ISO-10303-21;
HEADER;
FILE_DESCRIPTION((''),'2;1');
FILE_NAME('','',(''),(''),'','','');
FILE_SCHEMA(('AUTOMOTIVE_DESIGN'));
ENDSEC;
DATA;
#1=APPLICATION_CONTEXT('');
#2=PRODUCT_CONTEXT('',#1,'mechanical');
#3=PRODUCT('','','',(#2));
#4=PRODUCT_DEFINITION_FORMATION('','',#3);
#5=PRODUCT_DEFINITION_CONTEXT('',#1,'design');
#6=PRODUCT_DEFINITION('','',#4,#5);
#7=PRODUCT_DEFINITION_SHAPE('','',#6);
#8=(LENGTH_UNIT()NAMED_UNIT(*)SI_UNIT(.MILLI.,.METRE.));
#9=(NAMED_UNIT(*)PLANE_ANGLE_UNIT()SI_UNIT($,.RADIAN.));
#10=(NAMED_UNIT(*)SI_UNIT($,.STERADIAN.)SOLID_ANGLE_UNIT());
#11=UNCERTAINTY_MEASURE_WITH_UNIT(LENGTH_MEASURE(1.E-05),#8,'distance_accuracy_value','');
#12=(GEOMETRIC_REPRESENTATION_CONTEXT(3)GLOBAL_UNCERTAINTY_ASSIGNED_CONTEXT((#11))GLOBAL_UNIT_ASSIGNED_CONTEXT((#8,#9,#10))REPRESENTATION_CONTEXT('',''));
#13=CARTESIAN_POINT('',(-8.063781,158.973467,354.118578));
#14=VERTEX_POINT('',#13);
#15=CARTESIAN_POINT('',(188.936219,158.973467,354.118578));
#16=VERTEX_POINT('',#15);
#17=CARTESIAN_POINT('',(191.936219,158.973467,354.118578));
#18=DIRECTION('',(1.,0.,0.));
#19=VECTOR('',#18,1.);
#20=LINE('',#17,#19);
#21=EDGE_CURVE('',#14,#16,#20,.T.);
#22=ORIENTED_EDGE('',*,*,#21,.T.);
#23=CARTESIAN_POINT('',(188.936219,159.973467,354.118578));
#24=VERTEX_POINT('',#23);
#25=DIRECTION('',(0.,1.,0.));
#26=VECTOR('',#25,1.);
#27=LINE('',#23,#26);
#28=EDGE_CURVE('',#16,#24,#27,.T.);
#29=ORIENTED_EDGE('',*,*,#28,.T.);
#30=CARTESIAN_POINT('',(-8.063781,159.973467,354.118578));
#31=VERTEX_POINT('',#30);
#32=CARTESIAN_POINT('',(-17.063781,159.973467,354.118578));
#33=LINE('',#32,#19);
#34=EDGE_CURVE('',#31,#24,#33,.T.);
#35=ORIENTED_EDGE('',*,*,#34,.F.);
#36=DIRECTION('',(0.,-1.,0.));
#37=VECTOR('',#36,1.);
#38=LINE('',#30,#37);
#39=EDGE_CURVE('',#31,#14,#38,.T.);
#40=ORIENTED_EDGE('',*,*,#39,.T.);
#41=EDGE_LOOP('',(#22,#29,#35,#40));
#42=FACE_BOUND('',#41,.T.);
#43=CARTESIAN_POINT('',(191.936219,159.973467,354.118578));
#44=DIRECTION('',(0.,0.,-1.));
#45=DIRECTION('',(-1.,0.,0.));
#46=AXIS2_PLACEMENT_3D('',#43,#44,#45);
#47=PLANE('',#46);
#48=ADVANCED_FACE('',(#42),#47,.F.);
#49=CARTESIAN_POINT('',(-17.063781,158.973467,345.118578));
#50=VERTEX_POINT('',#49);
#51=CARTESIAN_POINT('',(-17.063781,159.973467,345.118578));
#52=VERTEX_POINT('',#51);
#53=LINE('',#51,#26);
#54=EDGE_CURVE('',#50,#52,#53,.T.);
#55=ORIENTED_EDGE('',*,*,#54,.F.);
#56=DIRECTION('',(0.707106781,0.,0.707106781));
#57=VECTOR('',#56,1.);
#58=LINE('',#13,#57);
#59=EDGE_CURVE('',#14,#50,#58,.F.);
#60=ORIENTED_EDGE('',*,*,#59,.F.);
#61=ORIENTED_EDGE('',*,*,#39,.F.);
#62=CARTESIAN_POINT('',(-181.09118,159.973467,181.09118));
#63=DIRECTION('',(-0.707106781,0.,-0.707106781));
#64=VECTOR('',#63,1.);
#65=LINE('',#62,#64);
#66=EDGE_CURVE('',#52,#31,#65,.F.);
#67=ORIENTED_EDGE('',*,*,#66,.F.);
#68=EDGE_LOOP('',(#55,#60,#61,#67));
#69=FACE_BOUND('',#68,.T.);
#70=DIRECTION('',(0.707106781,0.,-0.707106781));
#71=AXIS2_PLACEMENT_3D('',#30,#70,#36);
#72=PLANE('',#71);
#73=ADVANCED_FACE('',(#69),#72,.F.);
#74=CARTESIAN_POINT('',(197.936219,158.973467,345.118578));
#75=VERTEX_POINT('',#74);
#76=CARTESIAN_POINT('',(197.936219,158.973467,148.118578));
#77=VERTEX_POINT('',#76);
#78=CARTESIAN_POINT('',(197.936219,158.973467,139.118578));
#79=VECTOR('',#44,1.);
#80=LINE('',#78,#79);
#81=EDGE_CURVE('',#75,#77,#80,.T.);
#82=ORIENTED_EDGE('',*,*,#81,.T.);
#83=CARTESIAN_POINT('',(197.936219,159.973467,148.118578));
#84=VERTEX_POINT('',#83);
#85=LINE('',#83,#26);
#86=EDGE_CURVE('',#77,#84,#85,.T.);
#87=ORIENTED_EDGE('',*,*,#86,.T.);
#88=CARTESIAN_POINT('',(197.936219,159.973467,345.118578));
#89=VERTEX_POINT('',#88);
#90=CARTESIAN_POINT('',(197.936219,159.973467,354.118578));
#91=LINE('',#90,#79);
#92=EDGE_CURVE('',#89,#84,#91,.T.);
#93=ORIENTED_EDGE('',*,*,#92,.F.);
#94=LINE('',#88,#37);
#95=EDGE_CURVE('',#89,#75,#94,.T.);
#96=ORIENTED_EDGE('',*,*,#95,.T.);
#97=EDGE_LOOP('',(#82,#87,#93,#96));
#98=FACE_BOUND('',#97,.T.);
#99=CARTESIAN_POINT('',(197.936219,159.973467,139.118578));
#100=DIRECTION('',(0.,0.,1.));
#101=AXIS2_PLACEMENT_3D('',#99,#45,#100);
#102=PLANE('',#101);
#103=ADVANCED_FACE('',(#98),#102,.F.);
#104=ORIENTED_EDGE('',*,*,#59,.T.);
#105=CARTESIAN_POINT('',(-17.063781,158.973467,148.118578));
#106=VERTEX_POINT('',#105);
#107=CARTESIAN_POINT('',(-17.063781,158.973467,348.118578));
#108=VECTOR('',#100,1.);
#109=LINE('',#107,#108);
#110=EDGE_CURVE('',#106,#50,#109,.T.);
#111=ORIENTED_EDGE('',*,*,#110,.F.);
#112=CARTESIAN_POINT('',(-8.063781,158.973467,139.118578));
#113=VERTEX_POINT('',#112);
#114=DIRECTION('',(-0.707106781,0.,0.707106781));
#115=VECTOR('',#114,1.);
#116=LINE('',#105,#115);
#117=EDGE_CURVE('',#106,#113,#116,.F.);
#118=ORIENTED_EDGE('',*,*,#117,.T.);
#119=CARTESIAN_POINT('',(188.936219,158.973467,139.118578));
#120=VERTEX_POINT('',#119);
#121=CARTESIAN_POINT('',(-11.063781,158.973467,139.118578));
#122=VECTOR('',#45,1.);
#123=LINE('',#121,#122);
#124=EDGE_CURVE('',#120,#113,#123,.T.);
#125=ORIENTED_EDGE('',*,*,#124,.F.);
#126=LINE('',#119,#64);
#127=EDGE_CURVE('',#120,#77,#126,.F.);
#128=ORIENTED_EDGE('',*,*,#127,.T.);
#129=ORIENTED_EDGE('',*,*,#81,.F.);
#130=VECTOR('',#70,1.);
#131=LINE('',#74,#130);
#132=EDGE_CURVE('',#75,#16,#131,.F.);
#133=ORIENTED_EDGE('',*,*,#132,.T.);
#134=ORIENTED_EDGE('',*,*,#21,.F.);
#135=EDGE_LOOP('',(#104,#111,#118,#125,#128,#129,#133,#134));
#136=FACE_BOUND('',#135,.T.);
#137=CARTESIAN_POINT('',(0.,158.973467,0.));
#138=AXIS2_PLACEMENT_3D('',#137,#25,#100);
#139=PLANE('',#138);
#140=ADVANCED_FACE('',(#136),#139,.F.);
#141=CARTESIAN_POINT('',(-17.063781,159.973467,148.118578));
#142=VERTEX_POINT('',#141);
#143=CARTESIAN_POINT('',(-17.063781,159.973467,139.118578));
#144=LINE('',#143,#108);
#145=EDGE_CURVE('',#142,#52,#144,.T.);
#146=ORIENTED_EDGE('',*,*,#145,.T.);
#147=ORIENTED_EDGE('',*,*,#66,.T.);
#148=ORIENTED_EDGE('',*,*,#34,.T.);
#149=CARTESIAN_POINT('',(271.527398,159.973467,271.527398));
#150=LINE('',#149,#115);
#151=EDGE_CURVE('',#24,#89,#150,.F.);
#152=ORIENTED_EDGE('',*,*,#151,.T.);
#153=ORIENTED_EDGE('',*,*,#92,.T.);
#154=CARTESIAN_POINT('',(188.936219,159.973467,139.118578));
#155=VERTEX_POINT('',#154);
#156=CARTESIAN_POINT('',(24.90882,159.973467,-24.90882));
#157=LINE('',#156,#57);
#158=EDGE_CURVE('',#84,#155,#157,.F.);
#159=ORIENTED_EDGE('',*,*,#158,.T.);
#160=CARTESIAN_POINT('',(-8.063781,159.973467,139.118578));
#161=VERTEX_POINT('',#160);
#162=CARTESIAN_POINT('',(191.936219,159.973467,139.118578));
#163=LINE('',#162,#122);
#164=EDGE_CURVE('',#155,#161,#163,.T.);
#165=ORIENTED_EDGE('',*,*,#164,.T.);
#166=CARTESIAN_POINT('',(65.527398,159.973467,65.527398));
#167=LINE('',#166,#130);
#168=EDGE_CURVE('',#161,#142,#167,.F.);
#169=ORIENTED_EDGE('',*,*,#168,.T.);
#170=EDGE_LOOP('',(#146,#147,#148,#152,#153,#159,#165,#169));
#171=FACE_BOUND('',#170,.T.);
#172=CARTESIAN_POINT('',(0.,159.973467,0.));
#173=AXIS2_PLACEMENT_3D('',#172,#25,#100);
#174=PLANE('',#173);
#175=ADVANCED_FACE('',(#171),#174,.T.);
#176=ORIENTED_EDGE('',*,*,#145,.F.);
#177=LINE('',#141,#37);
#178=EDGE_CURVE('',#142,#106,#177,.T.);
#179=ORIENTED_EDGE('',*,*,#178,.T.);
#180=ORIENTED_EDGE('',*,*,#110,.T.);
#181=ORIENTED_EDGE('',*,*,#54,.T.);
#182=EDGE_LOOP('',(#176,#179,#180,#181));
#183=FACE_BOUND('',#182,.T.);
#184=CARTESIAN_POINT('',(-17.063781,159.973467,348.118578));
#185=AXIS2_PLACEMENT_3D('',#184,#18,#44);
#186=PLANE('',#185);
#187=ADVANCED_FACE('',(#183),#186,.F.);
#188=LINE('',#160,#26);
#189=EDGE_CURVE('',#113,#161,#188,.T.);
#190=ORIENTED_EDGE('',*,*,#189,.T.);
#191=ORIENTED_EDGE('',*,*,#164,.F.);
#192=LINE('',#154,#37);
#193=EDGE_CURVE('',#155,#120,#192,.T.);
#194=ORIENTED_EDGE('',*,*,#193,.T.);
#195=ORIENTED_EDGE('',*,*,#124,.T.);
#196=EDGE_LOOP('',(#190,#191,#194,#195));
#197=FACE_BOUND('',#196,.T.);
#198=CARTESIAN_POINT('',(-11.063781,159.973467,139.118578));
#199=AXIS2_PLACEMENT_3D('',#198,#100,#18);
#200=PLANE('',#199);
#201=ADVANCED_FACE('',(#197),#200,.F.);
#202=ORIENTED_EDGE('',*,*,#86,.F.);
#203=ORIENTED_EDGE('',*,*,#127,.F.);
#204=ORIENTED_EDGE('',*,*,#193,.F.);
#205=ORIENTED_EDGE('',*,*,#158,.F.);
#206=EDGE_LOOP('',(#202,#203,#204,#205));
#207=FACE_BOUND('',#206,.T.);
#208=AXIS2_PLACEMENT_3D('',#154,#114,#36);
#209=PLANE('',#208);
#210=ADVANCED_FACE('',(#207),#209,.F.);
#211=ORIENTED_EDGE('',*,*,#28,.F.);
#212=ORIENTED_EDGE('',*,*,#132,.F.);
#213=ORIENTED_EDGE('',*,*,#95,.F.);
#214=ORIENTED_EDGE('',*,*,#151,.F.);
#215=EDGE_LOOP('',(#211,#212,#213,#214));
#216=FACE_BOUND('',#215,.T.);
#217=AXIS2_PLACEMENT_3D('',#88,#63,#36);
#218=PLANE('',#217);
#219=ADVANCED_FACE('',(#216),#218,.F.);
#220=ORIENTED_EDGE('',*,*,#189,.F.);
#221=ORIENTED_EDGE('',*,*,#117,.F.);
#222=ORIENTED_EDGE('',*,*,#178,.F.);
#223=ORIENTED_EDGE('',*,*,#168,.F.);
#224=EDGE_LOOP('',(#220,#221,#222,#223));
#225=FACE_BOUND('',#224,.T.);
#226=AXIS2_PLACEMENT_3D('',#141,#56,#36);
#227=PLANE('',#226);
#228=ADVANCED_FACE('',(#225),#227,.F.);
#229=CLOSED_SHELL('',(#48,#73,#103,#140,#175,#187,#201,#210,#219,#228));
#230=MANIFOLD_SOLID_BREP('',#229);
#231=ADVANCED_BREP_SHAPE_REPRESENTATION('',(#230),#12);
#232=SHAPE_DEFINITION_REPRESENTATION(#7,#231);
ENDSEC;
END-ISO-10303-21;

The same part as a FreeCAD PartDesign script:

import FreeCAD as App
import Part
import Sketcher

V = App.Vector


def edges_at(feature, points):
    """Names of the edges that pass closest to the given points."""
    edges = feature.Shape.Edges
    near = lambda p: min(range(len(edges)), key=lambda i: edges[i].distToShape(Part.Vertex(*p))[0])
    return sorted({f"Edge{near(p) + 1}" for p in points})


def add_polygon(sketch, points):
    """Adds a closed chain of lines whose ends are joined by coincident constraints."""
    first, n = sketch.GeometryCount, len(points)
    for a, b in zip(points, points[1:] + points[:1]):
        sketch.addGeometry(Part.LineSegment(App.Vector(*a, 0), App.Vector(*b, 0)), False)
    for i in range(n):
        sketch.addConstraint(Sketcher.Constraint("Coincident", first + i, 2, first + (i + 1) % n, 1))

doc = App.newDocument("Part")
params = doc.addObject("Spreadsheet::Sheet", "Params")
for row, (alias, value) in enumerate([
    ("sketch1_width", "215 mm"),
    ("pad1_length", "1 mm"),
    ("chamfer_size", "9 mm"),
], start=1):
    params.set(f"A{row}", alias)
    params.set(f"B{row}", "=" + value)
    params.setAlias(f"B{row}", alias)

body = doc.addObject("PartDesign::Body", "Body")

# Sketch on XZ plane
sketch1 = body.newObject("Sketcher::SketchObject", "Sketch")
sketch1.AttachmentSupport = (doc.getObject("XZ_Plane"), [""])
sketch1.MapMode = "FlatFace"
sketch1.AttachmentOffset = App.Placement(V(0, 0, -158.973467), App.Rotation())
add_polygon(sketch1, [(198, 354), (198, 139), (-17, 139), (-17, 354)])  # lines 0-3
sketch1.addConstraint(Sketcher.Constraint("Vertical", 0))
sketch1.addConstraint(Sketcher.Constraint("Horizontal", 1))
sketch1.addConstraint(Sketcher.Constraint("Vertical", 2))
sketch1.addConstraint(Sketcher.Constraint("Horizontal", 3))
sketch1.addConstraint(Sketcher.Constraint("Equal", 3, 0))
sketch1.addConstraint(Sketcher.Constraint("DistanceX", 1, 2, 1, 1, 215.0))
sketch1.addConstraint(Sketcher.Constraint("DistanceX", -1, 1, 0, 2, 197.936219))
sketch1.addConstraint(Sketcher.Constraint("DistanceY", -1, 1, 0, 2, 139.118578))
sketch1.setExpression("Constraints[9]", "Params.sketch1_width")
pad1 = body.newObject("PartDesign::Pad", "Pad")
pad1.Profile = sketch1
pad1.setExpression("Length", "Params.pad1_length")
pad1.Reversed = True
doc.recompute()

chamfer = body.newObject("PartDesign::Chamfer", "Chamfer")
chamfer.Base = (pad1, edges_at(pad1, [
    (-17.064, 159.473, 354.119),
    (-17.064, 159.473, 139.119),
    (197.936, 159.473, 139.119),
    (197.936, 159.473, 354.119),
]))
chamfer.setExpression("Size", "Params.chamfer_size")

doc.recompute()
